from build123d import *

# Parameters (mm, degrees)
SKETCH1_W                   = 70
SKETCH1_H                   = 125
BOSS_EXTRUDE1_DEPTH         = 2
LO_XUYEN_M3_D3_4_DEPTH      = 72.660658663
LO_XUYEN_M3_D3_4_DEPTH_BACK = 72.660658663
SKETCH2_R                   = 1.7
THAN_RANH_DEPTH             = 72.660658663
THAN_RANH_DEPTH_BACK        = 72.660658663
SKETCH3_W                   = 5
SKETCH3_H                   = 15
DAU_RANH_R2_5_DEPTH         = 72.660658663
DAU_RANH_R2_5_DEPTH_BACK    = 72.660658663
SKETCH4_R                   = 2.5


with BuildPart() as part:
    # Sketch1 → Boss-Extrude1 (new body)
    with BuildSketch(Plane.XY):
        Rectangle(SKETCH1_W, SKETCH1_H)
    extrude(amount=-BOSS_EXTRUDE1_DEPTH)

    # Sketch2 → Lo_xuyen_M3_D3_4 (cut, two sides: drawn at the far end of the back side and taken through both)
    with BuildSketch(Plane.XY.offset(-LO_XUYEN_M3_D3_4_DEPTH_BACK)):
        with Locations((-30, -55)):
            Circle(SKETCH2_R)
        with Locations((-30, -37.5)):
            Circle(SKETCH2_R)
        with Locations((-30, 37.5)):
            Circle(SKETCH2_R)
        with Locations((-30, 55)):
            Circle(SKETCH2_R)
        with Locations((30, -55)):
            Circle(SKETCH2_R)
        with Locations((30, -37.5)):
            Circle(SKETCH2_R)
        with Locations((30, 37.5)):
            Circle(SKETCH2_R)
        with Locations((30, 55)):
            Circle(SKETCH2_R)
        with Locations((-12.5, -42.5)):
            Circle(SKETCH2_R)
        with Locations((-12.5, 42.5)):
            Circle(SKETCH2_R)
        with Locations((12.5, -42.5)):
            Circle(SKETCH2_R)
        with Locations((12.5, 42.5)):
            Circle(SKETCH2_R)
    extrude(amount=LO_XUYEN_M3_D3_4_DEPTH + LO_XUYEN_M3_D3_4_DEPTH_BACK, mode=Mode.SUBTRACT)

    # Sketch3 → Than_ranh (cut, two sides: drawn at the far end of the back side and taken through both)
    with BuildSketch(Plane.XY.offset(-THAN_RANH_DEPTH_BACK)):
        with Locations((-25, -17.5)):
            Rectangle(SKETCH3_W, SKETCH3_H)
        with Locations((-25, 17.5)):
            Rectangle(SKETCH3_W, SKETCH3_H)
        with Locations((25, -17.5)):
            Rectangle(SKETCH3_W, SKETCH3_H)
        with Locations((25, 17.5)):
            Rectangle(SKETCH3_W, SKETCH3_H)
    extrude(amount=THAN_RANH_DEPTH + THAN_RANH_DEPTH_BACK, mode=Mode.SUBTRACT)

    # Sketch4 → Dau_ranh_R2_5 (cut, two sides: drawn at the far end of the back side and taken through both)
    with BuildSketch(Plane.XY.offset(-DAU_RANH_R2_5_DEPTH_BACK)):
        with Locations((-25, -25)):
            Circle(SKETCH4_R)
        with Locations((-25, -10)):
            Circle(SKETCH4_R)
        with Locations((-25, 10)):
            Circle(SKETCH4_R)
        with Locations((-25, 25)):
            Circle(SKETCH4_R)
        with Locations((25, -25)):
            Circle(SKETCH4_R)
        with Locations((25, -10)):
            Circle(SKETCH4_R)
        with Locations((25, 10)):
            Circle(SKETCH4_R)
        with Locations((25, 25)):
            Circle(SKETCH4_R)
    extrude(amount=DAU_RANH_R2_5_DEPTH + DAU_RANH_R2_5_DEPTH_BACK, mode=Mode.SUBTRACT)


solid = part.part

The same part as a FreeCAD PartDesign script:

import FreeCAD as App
import Part
import Sketcher

V = App.Vector


def add_polygon(sketch, points):
    """Adds a closed chain of lines whose ends are joined by coincident constraints."""
    first, n = sketch.GeometryCount, len(points)
    for a, b in zip(points, points[1:] + points[:1]):
        sketch.addGeometry(Part.LineSegment(App.Vector(*a, 0), App.Vector(*b, 0)), False)
    for i in range(n):
        sketch.addConstraint(Sketcher.Constraint("Coincident", first + i, 2, first + (i + 1) % n, 1))

doc = App.newDocument("Part")
body = doc.addObject("PartDesign::Body", "Body")

# Sketch on XY plane
sketch1 = body.newObject("Sketcher::SketchObject", "Sketch")
sketch1.AttachmentSupport = (doc.getObject("XY_Plane"), [""])
sketch1.MapMode = "FlatFace"
add_polygon(sketch1, [(-35, 62), (-35, -62), (35, -62), (35, 62)])  # lines 0-3
sketch1.addConstraint([
    Sketcher.Constraint("Vertical", 0),
    Sketcher.Constraint("Horizontal", 1),
    Sketcher.Constraint("Vertical", 2),
    Sketcher.Constraint("Horizontal", 3),
    Sketcher.Constraint("Symmetric", 0, 2, 2, 2, -1, 1),
    Sketcher.Constraint("DistanceX", 1, 1, 1, 2, 70.0),
    Sketcher.Constraint("DistanceY", 0, 2, 0, 1, 125.0),
])
pad1 = body.newObject("PartDesign::Pad", "Pad")
pad1.Profile = sketch1
pad1.Length = 2
pad1.Reversed = True

# Sketch on XY plane
sketch2 = body.newObject("Sketcher::SketchObject", "Sketch001")
sketch2.AttachmentSupport = (doc.getObject("XY_Plane"), [""])
sketch2.MapMode = "FlatFace"
sketch2.addGeometry([
    Part.Circle(V(-30, -55, 0), V(0, 0, 1), 1.7),  # 0
    Part.Circle(V(-30, -37.5, 0), V(0, 0, 1), 1.7),  # 1
    Part.Circle(V(-30, 37.5, 0), V(0, 0, 1), 1.7),  # 2
    Part.Circle(V(-30, 55, 0), V(0, 0, 1), 1.7),  # 3
    Part.Circle(V(30, -55, 0), V(0, 0, 1), 1.7),  # 4
    Part.Circle(V(30, -37.5, 0), V(0, 0, 1), 1.7),  # 5
    Part.Circle(V(30, 37.5, 0), V(0, 0, 1), 1.7),  # 6
    Part.Circle(V(30, 55, 0), V(0, 0, 1), 1.7),  # 7
    Part.Circle(V(-12.5, -42.5, 0), V(0, 0, 1), 1.7),  # 8
    Part.Circle(V(-12.5, 42.5, 0), V(0, 0, 1), 1.7),  # 9
    Part.Circle(V(12.5, -42.5, 0), V(0, 0, 1), 1.7),  # 10
    Part.Circle(V(12.5, 42.5, 0), V(0, 0, 1), 1.7),  # 11
], False)
sketch2.addConstraint([
    Sketcher.Constraint("Equal", 0, 1),
    Sketcher.Constraint("Equal", 1, 2),
    Sketcher.Constraint("Equal", 2, 3),
    Sketcher.Constraint("Equal", 3, 4),
    Sketcher.Constraint("Equal", 4, 5),
    Sketcher.Constraint("Equal", 5, 6),
    Sketcher.Constraint("Equal", 6, 7),
    Sketcher.Constraint("Equal", 7, 8),
    Sketcher.Constraint("Equal", 8, 9),
    Sketcher.Constraint("Equal", 9, 10),
    Sketcher.Constraint("Equal", 10, 11),
    Sketcher.Constraint("Symmetric", 3, 3, 4, 3, -1, 1),
    Sketcher.Constraint("Symmetric", 2, 3, 5, 3, -1, 1),
    Sketcher.Constraint("Symmetric", 1, 3, 6, 3, -1, 1),
    Sketcher.Constraint("Symmetric", 0, 3, 7, 3, -1, 1),
    Sketcher.Constraint("Symmetric", 9, 3, 10, 3, -1, 1),
    Sketcher.Constraint("Symmetric", 8, 3, 11, 3, -1, 1),
    Sketcher.Constraint("Symmetric", 0, 3, 4, 3, -2),
    Sketcher.Constraint("Symmetric", 1, 3, 5, 3, -2),
    Sketcher.Constraint("Symmetric", 8, 3, 10, 3, -2),
    Sketcher.Constraint("Vertical", 0, 3, 1, 3),
    Sketcher.Constraint("Diameter", 0, 3.4),
    Sketcher.Constraint("DistanceX", 0, 3, -1, 1, 30.0),
    Sketcher.Constraint("DistanceY", 0, 3, -1, 1, 55.0),
    Sketcher.Constraint("DistanceY", 1, 3, 2, 3, 75.0),
    Sketcher.Constraint("DistanceY", 8, 3, 1, 3, 5.0),
    Sketcher.Constraint("DistanceX", 8, 3, 10, 3, 25.0),
])
pocket1 = body.newObject("PartDesign::Pocket", "Pocket")
pocket1.Profile = sketch2
pocket1.Type = "ThroughAll"
pocket1.Midplane = True

# Sketch on XY plane
sketch3 = body.newObject("Sketcher::SketchObject", "Sketch002")
sketch3.AttachmentSupport = (doc.getObject("XY_Plane"), [""])
sketch3.MapMode = "FlatFace"
add_polygon(sketch3, [(-28, -10), (-28, -25), (-22, -25), (-22, -10)])  # lines 0-3
add_polygon(sketch3, [(-28, 25), (-28, 10), (-22, 10), (-22, 25)])  # lines 4-7
add_polygon(sketch3, [(22, -10), (22, -25), (28, -25), (28, -10)])  # lines 8-11
add_polygon(sketch3, [(22, 25), (22, 10), (28, 10), (28, 25)])  # lines 12-15
sketch3.addConstraint([
    Sketcher.Constraint("Vertical", 0),
    Sketcher.Constraint("Horizontal", 1),
    Sketcher.Constraint("Vertical", 2),
    Sketcher.Constraint("Horizontal", 3),
    Sketcher.Constraint("Vertical", 4),
    Sketcher.Constraint("Horizontal", 5),
    Sketcher.Constraint("Vertical", 6),
    Sketcher.Constraint("Horizontal", 7),
    Sketcher.Constraint("Vertical", 8),
    Sketcher.Constraint("Horizontal", 9),
    Sketcher.Constraint("Vertical", 10),
    Sketcher.Constraint("Horizontal", 11),
    Sketcher.Constraint("Vertical", 12),
    Sketcher.Constraint("Horizontal", 13),
    Sketcher.Constraint("Vertical", 14),
    Sketcher.Constraint("Horizontal", 15),
    Sketcher.Constraint("Symmetric", 6, 2, 8, 2, -1, 1),
    Sketcher.Constraint("Symmetric", 4, 2, 10, 2, -1, 1),
    Sketcher.Constraint("Symmetric", 2, 2, 12, 2, -1, 1),
    Sketcher.Constraint("Symmetric", 0, 2, 14, 2, -1, 1),
    Sketcher.Constraint("Symmetric", 1, 2, 8, 2, -2),
    Sketcher.Constraint("Symmetric", 3, 2, 10, 2, -2),
    Sketcher.Constraint("DistanceX", 1, 1, 1, 2, 5.0),
    Sketcher.Constraint("DistanceY", 0, 2, 0, 1, 15.0),
    Sketcher.Constraint("DistanceY", 0, 2, -1, 1, 25.0),
    Sketcher.Constraint("DistanceX", 1, 2, 8, 2, 45.0),
])
pocket2 = body.newObject("PartDesign::Pocket", "Pocket001")
pocket2.Profile = sketch3
pocket2.Type = "ThroughAll"
pocket2.Midplane = True

# Sketch on XY plane
sketch4 = body.newObject("Sketcher::SketchObject", "Sketch003")
sketch4.AttachmentSupport = (doc.getObject("XY_Plane"), [""])
sketch4.MapMode = "FlatFace"
sketch4.addGeometry([
    Part.Circle(V(-25, -25, 0), V(0, 0, 1), 2.5),  # 0
    Part.Circle(V(-25, -10, 0), V(0, 0, 1), 2.5),  # 1
    Part.Circle(V(-25, 10, 0), V(0, 0, 1), 2.5),  # 2
    Part.Circle(V(-25, 25, 0), V(0, 0, 1), 2.5),  # 3
    Part.Circle(V(25, -25, 0), V(0, 0, 1), 2.5),  # 4
    Part.Circle(V(25, -10, 0), V(0, 0, 1), 2.5),  # 5
    Part.Circle(V(25, 10, 0), V(0, 0, 1), 2.5),  # 6
    Part.Circle(V(25, 25, 0), V(0, 0, 1), 2.5),  # 7
], False)
sketch4.addConstraint([
    Sketcher.Constraint("Equal", 0, 1),
    Sketcher.Constraint("Equal", 1, 2),
    Sketcher.Constraint("Equal", 2, 3),
    Sketcher.Constraint("Equal", 3, 4),
    Sketcher.Constraint("Equal", 4, 5),
    Sketcher.Constraint("Equal", 5, 6),
    Sketcher.Constraint("Equal", 6, 7),
    Sketcher.Constraint("Symmetric", 3, 3, 4, 3, -1, 1),
    Sketcher.Constraint("Symmetric", 2, 3, 5, 3, -1, 1),
    Sketcher.Constraint("Symmetric", 1, 3, 6, 3, -1, 1),
    Sketcher.Constraint("Symmetric", 0, 3, 7, 3, -1, 1),
    Sketcher.Constraint("Symmetric", 0, 3, 4, 3, -2),
    Sketcher.Constraint("Symmetric", 1, 3, 5, 3, -2),
    Sketcher.Constraint("Vertical", 0, 3, 1, 3),
    Sketcher.Constraint("Diameter", 0, 5.0),
    Sketcher.Constraint("DistanceX", 0, 3, -1, 1, 25.0),
    Sketcher.Constraint("DistanceY", 0, 3, -1, 1, 25.0),
    Sketcher.Constraint("DistanceY", 1, 3, -1, 1, 10.0),
])
pocket3 = body.newObject("PartDesign::Pocket", "Pocket002")
pocket3.Profile = sketch4
pocket3.Type = "ThroughAll"
pocket3.Midplane = True

doc.recompute()
